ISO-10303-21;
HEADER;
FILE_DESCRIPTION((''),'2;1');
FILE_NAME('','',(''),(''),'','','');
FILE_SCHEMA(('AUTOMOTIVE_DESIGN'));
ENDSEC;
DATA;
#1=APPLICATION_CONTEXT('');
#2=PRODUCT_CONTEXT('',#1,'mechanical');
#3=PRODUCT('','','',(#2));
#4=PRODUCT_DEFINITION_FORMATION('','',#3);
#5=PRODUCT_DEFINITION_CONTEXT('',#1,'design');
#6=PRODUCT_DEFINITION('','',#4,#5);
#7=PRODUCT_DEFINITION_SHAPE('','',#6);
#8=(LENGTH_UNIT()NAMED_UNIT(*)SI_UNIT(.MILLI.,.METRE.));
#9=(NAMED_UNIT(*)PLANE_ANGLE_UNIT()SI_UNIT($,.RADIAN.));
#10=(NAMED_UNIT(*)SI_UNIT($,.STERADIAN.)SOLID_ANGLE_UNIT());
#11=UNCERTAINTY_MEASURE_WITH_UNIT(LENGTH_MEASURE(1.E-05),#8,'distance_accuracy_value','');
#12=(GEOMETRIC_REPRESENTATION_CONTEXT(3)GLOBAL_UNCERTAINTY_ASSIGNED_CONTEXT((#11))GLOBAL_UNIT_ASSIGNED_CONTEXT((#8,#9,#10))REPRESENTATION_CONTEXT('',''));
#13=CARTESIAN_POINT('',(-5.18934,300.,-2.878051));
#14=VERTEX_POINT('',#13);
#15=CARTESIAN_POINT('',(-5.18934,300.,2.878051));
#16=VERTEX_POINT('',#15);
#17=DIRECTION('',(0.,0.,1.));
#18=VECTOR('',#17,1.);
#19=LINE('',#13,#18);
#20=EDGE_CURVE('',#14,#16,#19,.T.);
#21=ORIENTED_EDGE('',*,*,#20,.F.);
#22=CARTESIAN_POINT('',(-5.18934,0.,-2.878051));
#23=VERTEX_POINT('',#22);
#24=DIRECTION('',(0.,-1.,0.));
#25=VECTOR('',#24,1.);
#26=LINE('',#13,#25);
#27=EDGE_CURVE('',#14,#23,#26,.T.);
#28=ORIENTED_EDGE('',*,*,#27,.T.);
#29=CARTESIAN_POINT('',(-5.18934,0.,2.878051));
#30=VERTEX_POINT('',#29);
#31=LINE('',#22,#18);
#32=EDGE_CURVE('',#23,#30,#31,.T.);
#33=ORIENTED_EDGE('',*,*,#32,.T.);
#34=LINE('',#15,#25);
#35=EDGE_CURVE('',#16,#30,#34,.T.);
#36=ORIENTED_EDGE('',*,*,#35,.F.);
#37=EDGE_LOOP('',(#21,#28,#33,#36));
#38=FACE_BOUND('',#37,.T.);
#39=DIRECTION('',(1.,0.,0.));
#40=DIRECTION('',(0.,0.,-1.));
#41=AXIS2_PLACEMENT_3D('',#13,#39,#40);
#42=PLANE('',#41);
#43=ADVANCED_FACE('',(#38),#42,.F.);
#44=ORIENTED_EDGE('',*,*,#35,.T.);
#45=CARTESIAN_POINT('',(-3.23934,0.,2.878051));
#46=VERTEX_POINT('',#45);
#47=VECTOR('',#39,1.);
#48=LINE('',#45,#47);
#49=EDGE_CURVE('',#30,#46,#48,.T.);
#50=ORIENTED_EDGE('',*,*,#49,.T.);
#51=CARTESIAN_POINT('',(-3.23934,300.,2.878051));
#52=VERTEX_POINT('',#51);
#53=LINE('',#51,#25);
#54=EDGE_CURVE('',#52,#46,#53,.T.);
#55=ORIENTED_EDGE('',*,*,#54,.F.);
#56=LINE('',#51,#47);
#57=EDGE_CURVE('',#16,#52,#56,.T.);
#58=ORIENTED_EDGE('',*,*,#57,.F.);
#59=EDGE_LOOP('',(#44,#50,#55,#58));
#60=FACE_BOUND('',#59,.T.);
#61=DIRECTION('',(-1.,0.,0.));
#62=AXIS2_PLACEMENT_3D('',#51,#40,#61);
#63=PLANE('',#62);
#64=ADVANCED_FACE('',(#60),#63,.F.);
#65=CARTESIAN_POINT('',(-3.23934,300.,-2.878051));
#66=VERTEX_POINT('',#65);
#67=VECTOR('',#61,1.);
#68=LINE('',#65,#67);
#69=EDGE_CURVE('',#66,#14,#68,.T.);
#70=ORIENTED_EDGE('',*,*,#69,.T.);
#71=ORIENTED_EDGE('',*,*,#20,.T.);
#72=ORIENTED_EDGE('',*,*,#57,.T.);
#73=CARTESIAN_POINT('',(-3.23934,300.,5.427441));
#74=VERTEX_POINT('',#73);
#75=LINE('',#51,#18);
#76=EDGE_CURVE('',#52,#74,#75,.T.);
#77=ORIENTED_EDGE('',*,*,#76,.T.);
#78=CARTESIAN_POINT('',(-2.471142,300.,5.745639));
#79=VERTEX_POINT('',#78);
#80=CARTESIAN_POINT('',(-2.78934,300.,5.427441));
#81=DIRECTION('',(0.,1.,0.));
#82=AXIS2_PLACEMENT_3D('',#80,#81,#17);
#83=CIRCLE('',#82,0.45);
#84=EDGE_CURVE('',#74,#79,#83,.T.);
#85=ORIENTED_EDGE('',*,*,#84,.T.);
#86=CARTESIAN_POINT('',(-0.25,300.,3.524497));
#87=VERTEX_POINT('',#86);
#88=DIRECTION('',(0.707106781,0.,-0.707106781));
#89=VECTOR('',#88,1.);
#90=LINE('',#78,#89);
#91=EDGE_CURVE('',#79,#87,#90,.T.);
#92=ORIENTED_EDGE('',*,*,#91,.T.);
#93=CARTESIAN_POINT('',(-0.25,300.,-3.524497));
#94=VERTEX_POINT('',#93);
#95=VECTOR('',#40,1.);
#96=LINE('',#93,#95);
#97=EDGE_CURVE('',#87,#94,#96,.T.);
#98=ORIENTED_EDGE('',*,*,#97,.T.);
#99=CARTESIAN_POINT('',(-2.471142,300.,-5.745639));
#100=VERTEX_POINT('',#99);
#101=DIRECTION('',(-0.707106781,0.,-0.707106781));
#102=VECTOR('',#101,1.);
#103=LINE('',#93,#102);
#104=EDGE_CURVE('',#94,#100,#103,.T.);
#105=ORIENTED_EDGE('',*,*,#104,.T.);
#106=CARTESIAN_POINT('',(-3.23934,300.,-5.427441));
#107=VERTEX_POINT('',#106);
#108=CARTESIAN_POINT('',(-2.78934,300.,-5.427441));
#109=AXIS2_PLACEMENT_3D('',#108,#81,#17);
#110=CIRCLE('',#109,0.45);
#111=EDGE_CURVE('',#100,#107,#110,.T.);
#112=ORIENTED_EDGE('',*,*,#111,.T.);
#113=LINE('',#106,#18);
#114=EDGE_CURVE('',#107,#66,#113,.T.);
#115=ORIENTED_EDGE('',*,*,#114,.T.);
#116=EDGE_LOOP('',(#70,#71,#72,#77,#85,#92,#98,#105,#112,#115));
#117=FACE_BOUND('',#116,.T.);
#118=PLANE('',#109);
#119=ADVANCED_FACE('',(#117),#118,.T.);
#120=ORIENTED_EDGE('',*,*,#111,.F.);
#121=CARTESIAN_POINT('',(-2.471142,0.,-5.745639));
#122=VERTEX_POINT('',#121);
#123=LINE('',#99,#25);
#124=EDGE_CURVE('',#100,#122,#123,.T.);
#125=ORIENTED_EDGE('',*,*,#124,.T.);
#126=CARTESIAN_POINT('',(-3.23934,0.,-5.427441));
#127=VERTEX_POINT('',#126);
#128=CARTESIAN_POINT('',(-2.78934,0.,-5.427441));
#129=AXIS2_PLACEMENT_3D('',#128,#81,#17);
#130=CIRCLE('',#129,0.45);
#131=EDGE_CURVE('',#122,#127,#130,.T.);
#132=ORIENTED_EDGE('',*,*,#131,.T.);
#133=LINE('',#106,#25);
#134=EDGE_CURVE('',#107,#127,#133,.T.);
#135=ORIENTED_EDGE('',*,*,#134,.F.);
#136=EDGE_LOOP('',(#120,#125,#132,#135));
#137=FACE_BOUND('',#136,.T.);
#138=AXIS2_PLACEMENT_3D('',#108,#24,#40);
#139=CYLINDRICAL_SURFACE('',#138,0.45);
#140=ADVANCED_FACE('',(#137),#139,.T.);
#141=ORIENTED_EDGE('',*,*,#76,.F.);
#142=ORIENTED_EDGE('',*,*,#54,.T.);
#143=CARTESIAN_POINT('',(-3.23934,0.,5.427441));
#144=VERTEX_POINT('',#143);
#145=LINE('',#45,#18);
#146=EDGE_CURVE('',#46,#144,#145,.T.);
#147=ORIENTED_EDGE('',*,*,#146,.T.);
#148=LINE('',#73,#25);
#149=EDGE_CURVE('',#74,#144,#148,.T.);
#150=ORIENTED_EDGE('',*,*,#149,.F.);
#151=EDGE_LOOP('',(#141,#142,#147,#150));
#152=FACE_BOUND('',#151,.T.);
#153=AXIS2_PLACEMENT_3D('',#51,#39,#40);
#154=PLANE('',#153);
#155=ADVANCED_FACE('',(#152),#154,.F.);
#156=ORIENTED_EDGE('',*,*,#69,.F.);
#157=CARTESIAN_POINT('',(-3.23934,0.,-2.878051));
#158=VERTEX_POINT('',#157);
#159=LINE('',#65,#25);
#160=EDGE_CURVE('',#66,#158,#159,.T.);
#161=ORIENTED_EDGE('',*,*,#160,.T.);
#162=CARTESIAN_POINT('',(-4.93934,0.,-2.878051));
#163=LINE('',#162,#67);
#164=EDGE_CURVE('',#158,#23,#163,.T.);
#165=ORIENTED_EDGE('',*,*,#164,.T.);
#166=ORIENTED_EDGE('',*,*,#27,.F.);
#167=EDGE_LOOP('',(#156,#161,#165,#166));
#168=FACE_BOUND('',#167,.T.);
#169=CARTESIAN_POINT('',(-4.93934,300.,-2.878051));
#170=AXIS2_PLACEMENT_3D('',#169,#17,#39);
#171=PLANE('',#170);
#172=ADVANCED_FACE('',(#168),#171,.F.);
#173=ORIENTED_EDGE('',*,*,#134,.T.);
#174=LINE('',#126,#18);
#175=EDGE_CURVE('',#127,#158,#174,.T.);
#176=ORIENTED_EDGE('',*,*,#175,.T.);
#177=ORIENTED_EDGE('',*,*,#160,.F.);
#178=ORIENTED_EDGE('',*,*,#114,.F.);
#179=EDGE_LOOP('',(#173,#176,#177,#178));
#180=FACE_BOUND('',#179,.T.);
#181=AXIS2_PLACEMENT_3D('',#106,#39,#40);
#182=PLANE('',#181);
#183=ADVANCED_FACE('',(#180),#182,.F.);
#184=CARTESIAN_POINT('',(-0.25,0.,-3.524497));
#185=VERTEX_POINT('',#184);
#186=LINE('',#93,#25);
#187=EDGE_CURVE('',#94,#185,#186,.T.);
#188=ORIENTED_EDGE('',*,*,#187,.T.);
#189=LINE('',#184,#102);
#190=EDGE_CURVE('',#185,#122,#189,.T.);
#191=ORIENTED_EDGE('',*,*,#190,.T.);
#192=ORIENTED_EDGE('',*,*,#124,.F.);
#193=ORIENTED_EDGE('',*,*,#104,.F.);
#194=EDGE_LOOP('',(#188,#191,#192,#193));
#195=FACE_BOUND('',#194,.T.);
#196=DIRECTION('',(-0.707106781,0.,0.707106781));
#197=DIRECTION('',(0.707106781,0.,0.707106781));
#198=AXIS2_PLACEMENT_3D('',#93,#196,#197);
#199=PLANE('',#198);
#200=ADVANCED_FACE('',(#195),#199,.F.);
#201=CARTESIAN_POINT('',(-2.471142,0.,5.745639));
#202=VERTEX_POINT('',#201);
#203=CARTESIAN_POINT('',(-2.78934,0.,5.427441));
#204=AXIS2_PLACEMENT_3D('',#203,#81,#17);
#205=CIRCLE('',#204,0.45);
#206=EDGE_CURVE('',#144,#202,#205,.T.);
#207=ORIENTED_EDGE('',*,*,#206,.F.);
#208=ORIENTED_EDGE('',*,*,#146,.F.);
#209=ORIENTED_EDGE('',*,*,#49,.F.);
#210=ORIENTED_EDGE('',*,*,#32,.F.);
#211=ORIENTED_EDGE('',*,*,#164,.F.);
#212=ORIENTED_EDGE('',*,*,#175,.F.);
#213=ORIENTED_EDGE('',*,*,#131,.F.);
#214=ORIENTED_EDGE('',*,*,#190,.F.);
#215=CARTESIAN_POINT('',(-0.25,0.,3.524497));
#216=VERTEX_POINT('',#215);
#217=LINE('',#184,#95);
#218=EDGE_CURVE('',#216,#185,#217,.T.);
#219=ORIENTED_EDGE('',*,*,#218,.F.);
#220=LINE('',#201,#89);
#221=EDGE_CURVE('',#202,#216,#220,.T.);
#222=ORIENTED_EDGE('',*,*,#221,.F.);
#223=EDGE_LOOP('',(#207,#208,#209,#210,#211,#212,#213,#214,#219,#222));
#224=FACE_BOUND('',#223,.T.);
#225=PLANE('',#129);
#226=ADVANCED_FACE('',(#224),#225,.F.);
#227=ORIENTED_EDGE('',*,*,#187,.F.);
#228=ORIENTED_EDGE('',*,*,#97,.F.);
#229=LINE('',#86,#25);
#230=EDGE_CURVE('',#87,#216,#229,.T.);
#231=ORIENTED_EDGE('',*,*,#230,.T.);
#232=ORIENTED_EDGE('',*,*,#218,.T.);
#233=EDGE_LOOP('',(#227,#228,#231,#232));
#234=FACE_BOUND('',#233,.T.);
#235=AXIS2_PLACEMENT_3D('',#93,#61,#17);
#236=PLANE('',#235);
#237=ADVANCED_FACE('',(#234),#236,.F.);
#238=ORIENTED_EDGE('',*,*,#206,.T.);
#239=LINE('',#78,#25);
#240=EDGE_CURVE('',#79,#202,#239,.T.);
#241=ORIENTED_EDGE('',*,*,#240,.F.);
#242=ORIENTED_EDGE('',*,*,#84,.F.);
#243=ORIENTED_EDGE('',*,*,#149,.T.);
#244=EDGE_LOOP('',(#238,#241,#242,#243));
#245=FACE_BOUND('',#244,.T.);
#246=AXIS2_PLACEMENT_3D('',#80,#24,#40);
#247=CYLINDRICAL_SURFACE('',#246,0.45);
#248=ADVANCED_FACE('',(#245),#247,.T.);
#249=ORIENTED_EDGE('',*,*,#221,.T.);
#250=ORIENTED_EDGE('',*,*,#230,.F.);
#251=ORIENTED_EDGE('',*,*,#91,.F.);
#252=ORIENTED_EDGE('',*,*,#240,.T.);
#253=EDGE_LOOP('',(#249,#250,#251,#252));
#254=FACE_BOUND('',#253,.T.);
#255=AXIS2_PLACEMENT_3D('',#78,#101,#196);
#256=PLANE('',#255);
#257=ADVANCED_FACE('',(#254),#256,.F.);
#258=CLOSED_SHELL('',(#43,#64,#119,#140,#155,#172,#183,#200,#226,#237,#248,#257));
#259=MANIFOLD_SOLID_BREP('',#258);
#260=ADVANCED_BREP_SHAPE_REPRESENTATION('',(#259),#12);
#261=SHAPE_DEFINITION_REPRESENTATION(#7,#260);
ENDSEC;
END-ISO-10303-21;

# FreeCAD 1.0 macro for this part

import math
import FreeCAD as App
import Part
import Sketcher

V = App.Vector
Q = App.Units.Quantity

doc = App.newDocument("Part")
body = doc.addObject("PartDesign::Body", "Body")

# Sketch on XZ plane
sketch1 = body.newObject("Sketcher::SketchObject", "Sketch")
sketch1.AttachmentSupport = (doc.getObject("XZ_Plane"), [""])
sketch1.MapMode = "FlatFace"
sketch1.addGeometry([
    Part.LineSegment(V(-3.24, 2.88, 0), V(-3.24, 5.43, 0)),  # 0
    Part.ArcOfCircle(Part.Circle(V(-2.79, 5.43, 0), V(0, 0, 1), 0.45), math.radians(45), math.radians(180)),  # 1
    Part.LineSegment(V(-2.47, 5.75, 0), V(-0.25, 3.52, 0)),  # 2
    Part.LineSegment(V(-0.25, 3.52, 0), V(-0.25, -3.52, 0)),  # 3
    Part.LineSegment(V(-0.25, -3.52, 0), V(-2.47, -5.75, 0)),  # 4
    Part.ArcOfCircle(Part.Circle(V(-2.79, -5.43, 0), V(0, 0, 1), 0.45), math.radians(-180), math.radians(-45)),  # 5
    Part.LineSegment(V(-3.24, -5.43, 0), V(-3.24, -2.88, 0)),  # 6
    Part.LineSegment(V(-3.24, -2.88, 0), V(-5.19, -2.88, 0)),  # 7
    Part.LineSegment(V(-5.19, -2.88, 0), V(-5.19, 2.88, 0)),  # 8
    Part.LineSegment(V(-5.19, 2.88, 0), V(-3.24, 2.88, 0)),  # 9
], False)
sketch1.addConstraint([
    Sketcher.Constraint("Tangent", 0, 2, 1, 2),
    Sketcher.Constraint("Tangent", 1, 1, 2, 1),
    Sketcher.Constraint("Coincident", 2, 2, 3, 1),
    Sketcher.Constraint("Coincident", 3, 2, 4, 1),
    Sketcher.Constraint("Tangent", 4, 2, 5, 2),
    Sketcher.Constraint("Tangent", 5, 1, 6, 1),
    Sketcher.Constraint("Coincident", 6, 2, 7, 1),
    Sketcher.Constraint("Coincident", 7, 2, 8, 1),
    Sketcher.Constraint("Coincident", 8, 2, 9, 1),
    Sketcher.Constraint("Coincident", 9, 2, 0, 1),
    Sketcher.Constraint("Vertical", 0),
    Sketcher.Constraint("Vertical", 3),
    Sketcher.Constraint("Vertical", 6),
    Sketcher.Constraint("Horizontal", 7),
    Sketcher.Constraint("Vertical", 8),
    Sketcher.Constraint("Horizontal", 9),
    Sketcher.Constraint("Equal", 1, 5),
    Sketcher.Constraint("Symmetric", 1, 3, 5, 3, -1),
    Sketcher.Constraint("Perpendicular", 2, 4),
    Sketcher.Constraint("Vertical", 1, 1, 4, 2),
    Sketcher.Constraint("Equal", 0, 6),
    Sketcher.Constraint("Radius", 1, Q("0.45 mm")),
    Sketcher.Constraint("DistanceX", 7, 2, 7, 1, Q("1.95 mm")),
    Sketcher.Constraint("DistanceX", 2, 2, -1, 1, Q("0.25 mm")),
    Sketcher.Constraint("DistanceY", 8, 1, 8, 2, Q("5.756102 mm")),
    Sketcher.Constraint("DistanceY", 0, 1, 0, 2, Q("2.54939 mm")),
    Sketcher.Constraint("Distance", 2, Q("3.141169 mm")),
])
pad1 = body.newObject("PartDesign::Pad", "Pad")
pad1.Profile = sketch1
pad1.Length = 300
pad1.Reversed = True

doc.recompute()
